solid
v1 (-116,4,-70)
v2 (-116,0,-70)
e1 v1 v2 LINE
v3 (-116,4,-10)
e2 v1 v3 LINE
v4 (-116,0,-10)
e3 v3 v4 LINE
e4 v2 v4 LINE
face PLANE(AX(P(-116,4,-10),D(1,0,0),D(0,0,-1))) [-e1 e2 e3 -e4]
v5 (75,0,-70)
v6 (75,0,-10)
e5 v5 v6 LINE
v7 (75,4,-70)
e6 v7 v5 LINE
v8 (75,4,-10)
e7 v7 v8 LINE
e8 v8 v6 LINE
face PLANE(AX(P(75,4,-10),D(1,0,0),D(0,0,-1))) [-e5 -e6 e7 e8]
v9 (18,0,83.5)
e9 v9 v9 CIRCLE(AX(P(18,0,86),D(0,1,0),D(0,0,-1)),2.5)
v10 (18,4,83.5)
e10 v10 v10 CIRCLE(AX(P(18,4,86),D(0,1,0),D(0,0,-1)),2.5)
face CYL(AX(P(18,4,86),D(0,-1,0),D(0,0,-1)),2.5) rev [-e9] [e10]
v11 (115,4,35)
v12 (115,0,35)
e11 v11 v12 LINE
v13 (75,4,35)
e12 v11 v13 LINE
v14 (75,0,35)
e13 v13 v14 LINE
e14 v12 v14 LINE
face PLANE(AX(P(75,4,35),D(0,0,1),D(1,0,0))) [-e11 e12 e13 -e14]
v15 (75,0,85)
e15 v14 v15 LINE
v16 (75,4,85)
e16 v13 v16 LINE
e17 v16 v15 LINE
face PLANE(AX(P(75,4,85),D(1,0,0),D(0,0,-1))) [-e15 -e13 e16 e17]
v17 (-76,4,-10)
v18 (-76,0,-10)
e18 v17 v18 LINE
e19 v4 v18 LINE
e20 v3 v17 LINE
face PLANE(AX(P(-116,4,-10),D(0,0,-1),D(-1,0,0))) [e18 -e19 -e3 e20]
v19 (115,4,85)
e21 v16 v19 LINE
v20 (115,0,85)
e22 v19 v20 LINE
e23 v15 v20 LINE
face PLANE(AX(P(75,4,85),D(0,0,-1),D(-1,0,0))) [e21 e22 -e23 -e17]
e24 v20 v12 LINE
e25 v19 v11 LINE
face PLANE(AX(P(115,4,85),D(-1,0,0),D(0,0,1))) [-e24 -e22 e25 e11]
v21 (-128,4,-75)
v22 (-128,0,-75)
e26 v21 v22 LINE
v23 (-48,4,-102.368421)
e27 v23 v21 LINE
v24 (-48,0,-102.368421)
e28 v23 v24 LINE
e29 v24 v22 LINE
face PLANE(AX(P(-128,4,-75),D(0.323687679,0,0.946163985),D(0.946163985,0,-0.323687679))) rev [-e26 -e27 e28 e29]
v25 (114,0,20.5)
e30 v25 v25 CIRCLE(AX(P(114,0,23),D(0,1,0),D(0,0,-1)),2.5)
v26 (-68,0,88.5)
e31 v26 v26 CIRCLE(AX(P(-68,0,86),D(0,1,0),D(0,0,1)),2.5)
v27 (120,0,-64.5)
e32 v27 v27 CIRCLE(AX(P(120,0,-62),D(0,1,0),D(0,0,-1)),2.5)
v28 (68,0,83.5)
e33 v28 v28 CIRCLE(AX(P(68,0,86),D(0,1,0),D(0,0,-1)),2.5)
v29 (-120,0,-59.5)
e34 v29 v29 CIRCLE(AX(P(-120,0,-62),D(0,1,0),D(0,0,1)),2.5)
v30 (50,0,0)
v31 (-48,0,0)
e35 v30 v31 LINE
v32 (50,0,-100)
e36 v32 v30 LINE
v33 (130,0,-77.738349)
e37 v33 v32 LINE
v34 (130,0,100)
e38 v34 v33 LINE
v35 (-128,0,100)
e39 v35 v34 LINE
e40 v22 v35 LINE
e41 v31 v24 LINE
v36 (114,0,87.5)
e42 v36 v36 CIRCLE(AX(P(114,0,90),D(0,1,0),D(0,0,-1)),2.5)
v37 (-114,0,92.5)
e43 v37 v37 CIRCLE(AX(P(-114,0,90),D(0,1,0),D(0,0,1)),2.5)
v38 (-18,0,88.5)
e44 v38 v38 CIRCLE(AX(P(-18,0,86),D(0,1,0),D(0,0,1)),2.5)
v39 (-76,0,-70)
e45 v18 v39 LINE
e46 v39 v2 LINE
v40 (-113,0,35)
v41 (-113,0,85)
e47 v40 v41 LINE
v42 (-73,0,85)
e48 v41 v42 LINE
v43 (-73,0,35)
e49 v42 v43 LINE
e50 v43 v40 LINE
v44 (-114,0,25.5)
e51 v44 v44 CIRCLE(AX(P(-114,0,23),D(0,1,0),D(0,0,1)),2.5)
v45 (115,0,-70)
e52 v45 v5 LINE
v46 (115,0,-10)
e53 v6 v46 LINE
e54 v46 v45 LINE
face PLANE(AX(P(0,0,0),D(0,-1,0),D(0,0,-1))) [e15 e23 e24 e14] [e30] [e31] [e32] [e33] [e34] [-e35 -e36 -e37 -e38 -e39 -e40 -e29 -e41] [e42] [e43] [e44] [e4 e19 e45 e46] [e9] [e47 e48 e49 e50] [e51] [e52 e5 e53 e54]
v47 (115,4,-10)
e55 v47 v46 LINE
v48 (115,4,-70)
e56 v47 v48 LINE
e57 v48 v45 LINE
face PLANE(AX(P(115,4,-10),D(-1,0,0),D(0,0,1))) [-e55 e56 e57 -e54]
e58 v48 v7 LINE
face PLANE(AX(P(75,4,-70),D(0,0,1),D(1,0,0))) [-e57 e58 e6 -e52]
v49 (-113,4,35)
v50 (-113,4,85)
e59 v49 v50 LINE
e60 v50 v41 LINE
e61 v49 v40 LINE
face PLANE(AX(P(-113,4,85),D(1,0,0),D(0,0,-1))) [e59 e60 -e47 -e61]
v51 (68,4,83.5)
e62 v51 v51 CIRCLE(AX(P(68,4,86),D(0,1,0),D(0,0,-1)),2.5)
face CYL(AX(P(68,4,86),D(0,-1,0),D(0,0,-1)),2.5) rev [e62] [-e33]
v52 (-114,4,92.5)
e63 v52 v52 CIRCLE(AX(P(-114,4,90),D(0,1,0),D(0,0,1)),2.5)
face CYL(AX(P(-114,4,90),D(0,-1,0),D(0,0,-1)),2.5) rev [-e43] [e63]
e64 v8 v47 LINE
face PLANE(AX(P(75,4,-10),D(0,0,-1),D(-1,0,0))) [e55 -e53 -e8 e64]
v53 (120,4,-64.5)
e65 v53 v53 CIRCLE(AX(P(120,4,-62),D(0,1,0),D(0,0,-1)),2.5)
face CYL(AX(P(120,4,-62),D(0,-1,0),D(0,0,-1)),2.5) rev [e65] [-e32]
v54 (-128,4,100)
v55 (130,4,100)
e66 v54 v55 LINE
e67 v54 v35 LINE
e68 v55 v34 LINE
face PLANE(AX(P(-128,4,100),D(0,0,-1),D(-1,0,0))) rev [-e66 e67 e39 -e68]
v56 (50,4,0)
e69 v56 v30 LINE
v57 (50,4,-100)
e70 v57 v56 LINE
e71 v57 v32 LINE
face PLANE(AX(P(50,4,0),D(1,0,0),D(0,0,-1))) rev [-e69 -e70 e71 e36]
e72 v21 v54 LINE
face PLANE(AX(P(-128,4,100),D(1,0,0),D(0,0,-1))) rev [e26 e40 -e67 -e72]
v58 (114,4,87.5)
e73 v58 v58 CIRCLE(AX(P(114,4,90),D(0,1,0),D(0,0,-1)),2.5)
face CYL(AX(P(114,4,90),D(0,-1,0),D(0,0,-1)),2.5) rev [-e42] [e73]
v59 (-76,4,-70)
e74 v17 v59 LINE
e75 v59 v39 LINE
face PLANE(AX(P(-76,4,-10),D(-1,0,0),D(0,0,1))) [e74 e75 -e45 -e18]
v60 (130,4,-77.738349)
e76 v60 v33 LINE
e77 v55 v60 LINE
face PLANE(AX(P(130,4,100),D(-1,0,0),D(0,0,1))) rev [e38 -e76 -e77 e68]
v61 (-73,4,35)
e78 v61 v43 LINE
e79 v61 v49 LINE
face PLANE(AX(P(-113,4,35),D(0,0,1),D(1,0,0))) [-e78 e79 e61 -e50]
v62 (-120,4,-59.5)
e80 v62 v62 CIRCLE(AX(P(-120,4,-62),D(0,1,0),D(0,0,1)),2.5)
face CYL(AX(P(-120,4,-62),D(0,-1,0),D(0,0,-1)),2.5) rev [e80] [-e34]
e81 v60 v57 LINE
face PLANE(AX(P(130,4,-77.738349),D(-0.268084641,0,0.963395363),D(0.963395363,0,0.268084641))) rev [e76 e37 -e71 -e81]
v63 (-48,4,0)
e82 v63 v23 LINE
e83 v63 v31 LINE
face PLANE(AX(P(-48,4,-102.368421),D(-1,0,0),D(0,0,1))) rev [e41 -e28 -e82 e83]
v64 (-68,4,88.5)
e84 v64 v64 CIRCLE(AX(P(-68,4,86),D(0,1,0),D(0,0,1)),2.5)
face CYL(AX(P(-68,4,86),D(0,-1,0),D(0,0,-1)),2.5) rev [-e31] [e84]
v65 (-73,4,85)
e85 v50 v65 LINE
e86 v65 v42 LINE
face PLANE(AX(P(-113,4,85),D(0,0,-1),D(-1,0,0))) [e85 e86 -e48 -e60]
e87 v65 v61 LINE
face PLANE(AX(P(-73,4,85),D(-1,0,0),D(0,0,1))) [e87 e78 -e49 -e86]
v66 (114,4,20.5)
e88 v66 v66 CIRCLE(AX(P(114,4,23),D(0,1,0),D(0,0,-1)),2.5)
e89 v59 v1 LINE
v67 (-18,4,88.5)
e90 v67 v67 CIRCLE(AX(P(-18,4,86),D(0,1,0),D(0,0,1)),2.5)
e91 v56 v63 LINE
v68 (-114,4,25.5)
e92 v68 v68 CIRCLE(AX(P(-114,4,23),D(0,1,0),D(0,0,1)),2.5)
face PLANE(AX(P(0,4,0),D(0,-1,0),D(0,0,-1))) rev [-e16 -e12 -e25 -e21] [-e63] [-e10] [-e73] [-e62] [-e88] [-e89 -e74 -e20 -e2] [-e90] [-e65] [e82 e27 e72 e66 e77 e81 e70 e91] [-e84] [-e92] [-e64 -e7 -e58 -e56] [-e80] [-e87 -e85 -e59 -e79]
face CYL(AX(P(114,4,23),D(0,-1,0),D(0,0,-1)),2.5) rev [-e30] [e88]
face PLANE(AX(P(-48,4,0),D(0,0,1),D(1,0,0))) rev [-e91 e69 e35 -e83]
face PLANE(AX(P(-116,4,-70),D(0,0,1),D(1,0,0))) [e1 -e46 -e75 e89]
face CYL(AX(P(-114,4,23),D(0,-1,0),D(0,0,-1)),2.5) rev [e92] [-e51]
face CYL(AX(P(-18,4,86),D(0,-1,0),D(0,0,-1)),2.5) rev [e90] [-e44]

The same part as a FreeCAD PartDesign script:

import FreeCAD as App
import Part
import Sketcher
Q = App.Units.Quantity

doc = App.newDocument("Part")
body = doc.addObject("PartDesign::Body", "Body")

# Sketch on XZ plane
sketch1 = body.newObject("Sketcher::SketchObject", "Sketch")
sketch1.AttachmentSupport = (doc.getObject("XZ_Plane"), [""])
sketch1.MapMode = "FlatFace"
sketch1.addGeometry([
    Part.LineSegment(App.Vector(-48, 0, 0), App.Vector(-48, -102.4, 0)),  # 0
    Part.LineSegment(App.Vector(-48, -102.4, 0), App.Vector(-128, -75, 0)),  # 1
    Part.LineSegment(App.Vector(-128, -75, 0), App.Vector(-128, 100, 0)),  # 2
    Part.LineSegment(App.Vector(-128, 100, 0), App.Vector(130, 100, 0)),  # 3
    Part.LineSegment(App.Vector(130, 100, 0), App.Vector(130, -77.7, 0)),  # 4
    Part.LineSegment(App.Vector(130, -77.7, 0), App.Vector(50, -100, 0)),  # 5
    Part.LineSegment(App.Vector(50, -100, 0), App.Vector(50, 0, 0)),  # 6
    Part.LineSegment(App.Vector(50, 0, 0), App.Vector(-48, 0, 0)),  # 7
    Part.Circle(App.Vector(114, 90, 0), App.Vector(0, 0, 1), 2.5),  # 8
    Part.Circle(App.Vector(68, 86, 0), App.Vector(0, 0, 1), 2.5),  # 9
    Part.LineSegment(App.Vector(75, 85, 0), App.Vector(75, 35, 0)),  # 10
    Part.LineSegment(App.Vector(75, 35, 0), App.Vector(115, 35, 0)),  # 11
    Part.LineSegment(App.Vector(115, 35, 0), App.Vector(115, 85, 0)),  # 12
    Part.LineSegment(App.Vector(115, 85, 0), App.Vector(75, 85, 0)),  # 13
    Part.Circle(App.Vector(18, 86, 0), App.Vector(0, 0, 1), 2.5),  # 14
    Part.Circle(App.Vector(114, 23, 0), App.Vector(0, 0, 1), 2.5),  # 15
    Part.Circle(App.Vector(-18, 86, 0), App.Vector(0, 0, 1), 2.5),  # 16
    Part.Circle(App.Vector(-68, 86, 0), App.Vector(0, 0, 1), 2.5),  # 17
    Part.Circle(App.Vector(-114, 90, 0), App.Vector(0, 0, 1), 2.5),  # 18
    Part.LineSegment(App.Vector(-113, 85, 0), App.Vector(-113, 35, 0)),  # 19
    Part.LineSegment(App.Vector(-113, 35, 0), App.Vector(-73, 35, 0)),  # 20
    Part.LineSegment(App.Vector(-73, 35, 0), App.Vector(-73, 85, 0)),  # 21
    Part.LineSegment(App.Vector(-73, 85, 0), App.Vector(-113, 85, 0)),  # 22
    Part.Circle(App.Vector(-114, 23, 0), App.Vector(0, 0, 1), 2.5),  # 23
    Part.LineSegment(App.Vector(75, -10, 0), App.Vector(75, -70, 0)),  # 24
    Part.LineSegment(App.Vector(75, -70, 0), App.Vector(115, -70, 0)),  # 25
    Part.LineSegment(App.Vector(115, -70, 0), App.Vector(115, -10, 0)),  # 26
    Part.LineSegment(App.Vector(115, -10, 0), App.Vector(75, -10, 0)),  # 27
    Part.Circle(App.Vector(120, -62, 0), App.Vector(0, 0, 1), 2.5),  # 28
    Part.LineSegment(App.Vector(-116, -10, 0), App.Vector(-116, -70, 0)),  # 29
    Part.LineSegment(App.Vector(-116, -70, 0), App.Vector(-76, -70, 0)),  # 30
    Part.LineSegment(App.Vector(-76, -70, 0), App.Vector(-76, -10, 0)),  # 31
    Part.LineSegment(App.Vector(-76, -10, 0), App.Vector(-116, -10, 0)),  # 32
    Part.Circle(App.Vector(-120, -62, 0), App.Vector(0, 0, 1), 2.5),  # 33
], False)
sketch1.addConstraint([
    Sketcher.Constraint("Coincident", 0, 2, 1, 1),
    Sketcher.Constraint("Coincident", 1, 2, 2, 1),
    Sketcher.Constraint("Coincident", 2, 2, 3, 1),
    Sketcher.Constraint("Coincident", 3, 2, 4, 1),
    Sketcher.Constraint("Coincident", 4, 2, 5, 1),
    Sketcher.Constraint("Coincident", 5, 2, 6, 1),
    Sketcher.Constraint("Coincident", 6, 2, 7, 1),
    Sketcher.Constraint("Coincident", 7, 2, 0, 1),
    Sketcher.Constraint("Coincident", 10, 2, 11, 1),
    Sketcher.Constraint("Coincident", 11, 2, 12, 1),
    Sketcher.Constraint("Coincident", 12, 2, 13, 1),
    Sketcher.Constraint("Coincident", 13, 2, 10, 1),
    Sketcher.Constraint("Coincident", 19, 2, 20, 1),
    Sketcher.Constraint("Coincident", 20, 2, 21, 1),
    Sketcher.Constraint("Coincident", 21, 2, 22, 1),
    Sketcher.Constraint("Coincident", 22, 2, 19, 1),
    Sketcher.Constraint("Coincident", 24, 2, 25, 1),
    Sketcher.Constraint("Coincident", 25, 2, 26, 1),
    Sketcher.Constraint("Coincident", 26, 2, 27, 1),
    Sketcher.Constraint("Coincident", 27, 2, 24, 1),
    Sketcher.Constraint("Coincident", 29, 2, 30, 1),
    Sketcher.Constraint("Coincident", 30, 2, 31, 1),
    Sketcher.Constraint("Coincident", 31, 2, 32, 1),
    Sketcher.Constraint("Coincident", 32, 2, 29, 1),
    Sketcher.Constraint("Vertical", 0),
    Sketcher.Constraint("Vertical", 2),
    Sketcher.Constraint("Horizontal", 3),
    Sketcher.Constraint("Vertical", 4),
    Sketcher.Constraint("Vertical", 6),
    Sketcher.Constraint("Horizontal", 7),
    Sketcher.Constraint("Vertical", 10),
    Sketcher.Constraint("Horizontal", 11),
    Sketcher.Constraint("Vertical", 12),
    Sketcher.Constraint("Horizontal", 13),
    Sketcher.Constraint("Vertical", 19),
    Sketcher.Constraint("Horizontal", 20),
    Sketcher.Constraint("Vertical", 21),
    Sketcher.Constraint("Horizontal", 22),
    Sketcher.Constraint("Vertical", 24),
    Sketcher.Constraint("Horizontal", 25),
    Sketcher.Constraint("Vertical", 26),
    Sketcher.Constraint("Horizontal", 27),
    Sketcher.Constraint("Vertical", 29),
    Sketcher.Constraint("Horizontal", 30),
    Sketcher.Constraint("Vertical", 31),
    Sketcher.Constraint("Horizontal", 32),
    Sketcher.Constraint("Equal", 8, 9),
    Sketcher.Constraint("Equal", 9, 14),
    Sketcher.Constraint("Equal", 14, 15),
    Sketcher.Constraint("Equal", 15, 16),
    Sketcher.Constraint("Equal", 16, 17),
    Sketcher.Constraint("Equal", 17, 18),
    Sketcher.Constraint("Equal", 18, 23),
    Sketcher.Constraint("Equal", 23, 28),
    Sketcher.Constraint("Equal", 28, 33),
    Sketcher.Constraint("Symmetric", 14, 3, 16, 3, -2),
    Sketcher.Constraint("Symmetric", 9, 3, 17, 3, -2),
    Sketcher.Constraint("Symmetric", 8, 3, 18, 3, -2),
    Sketcher.Constraint("Symmetric", 15, 3, 23, 3, -2),
    Sketcher.Constraint("Symmetric", 28, 3, 33, 3, -2),
    Sketcher.Constraint("PointOnObject", 6, 2, -1),
    Sketcher.Constraint("Horizontal", 9, 3, 14, 3),
    Sketcher.Constraint("Horizontal", 11, 2, 19, 2),
    Sketcher.Constraint("Horizontal", 13, 2, 21, 2),
    Sketcher.Constraint("Horizontal", 25, 2, 29, 2),
    Sketcher.Constraint("Horizontal", 27, 2, 31, 2),
    Sketcher.Constraint("Vertical", 8, 3, 15, 3),
    Sketcher.Constraint("Vertical", 13, 2, 24, 2),
    Sketcher.Constraint("Vertical", 12, 2, 25, 2),
    Sketcher.Constraint("Equal", 13, 20),
    Sketcher.Constraint("Equal", 27, 30),
    Sketcher.Constraint("Diameter", 8, Q("5 mm")),
    Sketcher.Constraint("DistanceX", 3, 1, 3, 2, Q("258 mm")),
    Sketcher.Constraint("DistanceX", 7, 2, 7, 1, Q("98 mm")),
    Sketcher.Constraint("DistanceX", 11, 1, 11, 2, Q("40 mm")),
    Sketcher.Constraint("DistanceY", 2, 1, 2, 2, Q("175 mm")),
    Sketcher.Constraint("DistanceY", 6, 1, 6, 2, Q("100 mm")),
    Sketcher.Constraint("DistanceY", 10, 2, 10, 1, Q("50 mm")),
    Sketcher.Constraint("DistanceY", 24, 2, 24, 1, Q("60 mm")),
    Sketcher.Constraint("DistanceX", -1, 1, 8, 3, Q("114 mm")),
    Sketcher.Constraint("DistanceY", -1, 1, 8, 3, Q("90 mm")),
    Sketcher.Constraint("DistanceX", -1, 1, 9, 3, Q("68 mm")),
    Sketcher.Constraint("DistanceY", -1, 1, 9, 3, Q("86 mm")),
    Sketcher.Constraint("DistanceX", -1, 1, 14, 3, Q("18 mm")),
    Sketcher.Constraint("DistanceY", -1, 1, 15, 3, Q("23 mm")),
    Sketcher.Constraint("DistanceX", -1, 1, 28, 3, Q("120 mm")),
    Sketcher.Constraint("DistanceY", 28, 3, -1, 1, Q("62 mm")),
    Sketcher.Constraint("DistanceX", 0, 2, -1, 1, Q("48 mm")),
    Sketcher.Constraint("DistanceX", 1, 2, -1, 1, Q("128 mm")),
    Sketcher.Constraint("DistanceY", 1, 2, -1, 1, Q("75 mm")),
    Sketcher.Constraint("DistanceX", -1, 1, 10, 2, Q("75 mm")),
    Sketcher.Constraint("DistanceY", -1, 1, 10, 2, Q("35 mm")),
    Sketcher.Constraint("DistanceX", 19, 2, -1, 1, Q("113 mm")),
    Sketcher.Constraint("DistanceY", 24, 2, -1, 1, Q("70 mm")),
    Sketcher.Constraint("DistanceX", 29, 2, -1, 1, Q("116 mm")),
    Sketcher.Constraint("DistanceY", 0, 2, 0, 1, Q("102.368421 mm")),
    Sketcher.Constraint("DistanceY", 4, 2, 4, 1, Q("177.738349 mm")),
])
pad1 = body.newObject("PartDesign::Pad", "Pad")
pad1.Profile = sketch1
pad1.Length = 4
pad1.Reversed = True

doc.recompute()
